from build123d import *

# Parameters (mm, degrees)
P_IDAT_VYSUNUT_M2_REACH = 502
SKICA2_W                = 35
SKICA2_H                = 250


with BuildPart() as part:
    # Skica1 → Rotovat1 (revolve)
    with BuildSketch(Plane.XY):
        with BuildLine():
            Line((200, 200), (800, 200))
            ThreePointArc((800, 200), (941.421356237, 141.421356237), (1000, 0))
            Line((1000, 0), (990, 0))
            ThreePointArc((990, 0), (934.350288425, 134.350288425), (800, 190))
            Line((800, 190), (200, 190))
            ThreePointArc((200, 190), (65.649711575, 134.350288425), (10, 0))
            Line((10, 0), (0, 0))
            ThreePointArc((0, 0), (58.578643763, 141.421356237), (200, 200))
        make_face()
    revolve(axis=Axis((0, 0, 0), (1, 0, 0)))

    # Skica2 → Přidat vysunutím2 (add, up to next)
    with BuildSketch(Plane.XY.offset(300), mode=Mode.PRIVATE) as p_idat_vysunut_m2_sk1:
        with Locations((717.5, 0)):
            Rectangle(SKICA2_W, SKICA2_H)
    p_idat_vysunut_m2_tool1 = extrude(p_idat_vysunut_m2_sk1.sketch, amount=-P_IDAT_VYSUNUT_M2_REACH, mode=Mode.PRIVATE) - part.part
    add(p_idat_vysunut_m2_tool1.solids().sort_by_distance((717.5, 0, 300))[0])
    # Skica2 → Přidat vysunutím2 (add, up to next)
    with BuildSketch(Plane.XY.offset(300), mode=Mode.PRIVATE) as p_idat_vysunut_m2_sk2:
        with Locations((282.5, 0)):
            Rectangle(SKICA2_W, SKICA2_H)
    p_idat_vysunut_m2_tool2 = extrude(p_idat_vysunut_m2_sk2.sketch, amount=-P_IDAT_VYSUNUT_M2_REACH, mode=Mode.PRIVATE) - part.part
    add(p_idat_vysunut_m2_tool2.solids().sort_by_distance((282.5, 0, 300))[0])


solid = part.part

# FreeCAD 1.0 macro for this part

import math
import FreeCAD as App
import Part
import Sketcher

V = App.Vector


def add_polygon(sketch, points):
    """Adds a closed chain of lines whose ends are joined by coincident constraints."""
    first, n = sketch.GeometryCount, len(points)
    for a, b in zip(points, points[1:] + points[:1]):
        sketch.addGeometry(Part.LineSegment(App.Vector(*a, 0), App.Vector(*b, 0)), False)
    for i in range(n):
        sketch.addConstraint(Sketcher.Constraint("Coincident", first + i, 2, first + (i + 1) % n, 1))

doc = App.newDocument("Part")
body = doc.addObject("PartDesign::Body", "Body")

# Sketch on XY plane
sketch1 = body.newObject("Sketcher::SketchObject", "Sketch")
sketch1.AttachmentSupport = (doc.getObject("XY_Plane"), [""])
sketch1.MapMode = "FlatFace"
sketch1.addGeometry([
    Part.LineSegment(V(800, 200, 0), V(200, 200, 0)),  # 0
    Part.ArcOfCircle(Part.Circle(V(200, 0, 0), V(0, 0, 1), 200), math.radians(90), math.radians(180)),  # 1
    Part.LineSegment(V(0, 0, 0), V(10, 0, 0)),  # 2
    Part.ArcOfCircle(Part.Circle(V(200, 0, 0), V(0, 0, 1), 190), math.radians(90), math.radians(180)),  # 3
    Part.LineSegment(V(200, 190, 0), V(800, 190, 0)),  # 4
    Part.ArcOfCircle(Part.Circle(V(800, 0, 0), V(0, 0, 1), 190), math.radians(0), math.radians(90)),  # 5
    Part.LineSegment(V(990, 0, 0), V(1000, 0, 0)),  # 6
    Part.ArcOfCircle(Part.Circle(V(800, 0, 0), V(0, 0, 1), 200), math.radians(0), math.radians(90)),  # 7
], False)
sketch1.addConstraint([
    Sketcher.Constraint("Tangent", 0, 2, 1, 1),
    Sketcher.Constraint("Coincident", 1, 2, 2, 1),
    Sketcher.Constraint("Coincident", 2, 2, 3, 2),
    Sketcher.Constraint("Tangent", 3, 1, 4, 1),
    Sketcher.Constraint("Tangent", 4, 2, 5, 2),
    Sketcher.Constraint("Coincident", 5, 1, 6, 1),
    Sketcher.Constraint("Coincident", 6, 2, 7, 1),
    Sketcher.Constraint("Tangent", 7, 2, 0, 1),
    Sketcher.Constraint("Horizontal", 0),
    Sketcher.Constraint("Horizontal", 2),
    Sketcher.Constraint("Horizontal", 4),
    Sketcher.Constraint("Horizontal", 6),
    Sketcher.Constraint("Coincident", 1, 2, -1, 1),
    Sketcher.Constraint("Coincident", 3, 3, 1, 3),
    Sketcher.Constraint("Coincident", 7, 3, 5, 3),
    Sketcher.Constraint("Equal", 3, 5),
    Sketcher.Constraint("PointOnObject", 1, 3, -1),
    Sketcher.Constraint("PointOnObject", 5, 1, -1),
    Sketcher.Constraint("Radius", 1, 200.0),
    Sketcher.Constraint("Radius", 3, 190.0),
    Sketcher.Constraint("DistanceX", 0, 2, 0, 1, 600.0),
])
revolution = body.newObject("PartDesign::Revolution", "Revolution")
revolution.Profile = sketch1
revolution.ReferenceAxis = (sketch1, ["H_Axis"])
revolution.Angle = 360

# Sketch on XY plane
sketch2 = body.newObject("Sketcher::SketchObject", "Sketch001")
sketch2.AttachmentSupport = (doc.getObject("XY_Plane"), [""])
sketch2.MapMode = "FlatFace"
sketch2.AttachmentOffset = App.Placement(V(0, 0, 300), App.Rotation())
add_polygon(sketch2, [(700, 125), (700, -125), (735, -125), (735, 125)])  # lines 0-3
sketch2.addConstraint([
    Sketcher.Constraint("Vertical", 0),
    Sketcher.Constraint("Horizontal", 1),
    Sketcher.Constraint("Vertical", 2),
    Sketcher.Constraint("Horizontal", 3),
    Sketcher.Constraint("DistanceX", 1, 1, 1, 2, 35.0),
    Sketcher.Constraint("DistanceY", 0, 2, 0, 1, 250.0),
    Sketcher.Constraint("DistanceX", -1, 1, 0, 2, 700.0),
    Sketcher.Constraint("DistanceY", 0, 2, -1, 1, 125.0),
])
pad1 = body.newObject("PartDesign::Pad", "Pad")
pad1.Profile = sketch2
pad1.Type = "UpToFirst"
pad1.Reversed = True

# Sketch on XY plane
sketch3 = body.newObject("Sketcher::SketchObject", "Sketch002")
sketch3.AttachmentSupport = (doc.getObject("XY_Plane"), [""])
sketch3.MapMode = "FlatFace"
sketch3.AttachmentOffset = App.Placement(V(0, 0, 300), App.Rotation())
add_polygon(sketch3, [(265, 125), (265, -125), (300, -125), (300, 125)])  # lines 0-3
sketch3.addConstraint([
    Sketcher.Constraint("Vertical", 0),
    Sketcher.Constraint("Horizontal", 1),
    Sketcher.Constraint("Vertical", 2),
    Sketcher.Constraint("Horizontal", 3),
    Sketcher.Constraint("DistanceX", 1, 1, 1, 2, 35.0),
    Sketcher.Constraint("DistanceY", 0, 2, 0, 1, 250.0),
    Sketcher.Constraint("DistanceX", -1, 1, 0, 2, 265.0),
    Sketcher.Constraint("DistanceY", 0, 2, -1, 1, 125.0),
])
pad2 = body.newObject("PartDesign::Pad", "Pad001")
pad2.Profile = sketch3
pad2.Type = "UpToFirst"
pad2.Reversed = True

doc.recompute()
